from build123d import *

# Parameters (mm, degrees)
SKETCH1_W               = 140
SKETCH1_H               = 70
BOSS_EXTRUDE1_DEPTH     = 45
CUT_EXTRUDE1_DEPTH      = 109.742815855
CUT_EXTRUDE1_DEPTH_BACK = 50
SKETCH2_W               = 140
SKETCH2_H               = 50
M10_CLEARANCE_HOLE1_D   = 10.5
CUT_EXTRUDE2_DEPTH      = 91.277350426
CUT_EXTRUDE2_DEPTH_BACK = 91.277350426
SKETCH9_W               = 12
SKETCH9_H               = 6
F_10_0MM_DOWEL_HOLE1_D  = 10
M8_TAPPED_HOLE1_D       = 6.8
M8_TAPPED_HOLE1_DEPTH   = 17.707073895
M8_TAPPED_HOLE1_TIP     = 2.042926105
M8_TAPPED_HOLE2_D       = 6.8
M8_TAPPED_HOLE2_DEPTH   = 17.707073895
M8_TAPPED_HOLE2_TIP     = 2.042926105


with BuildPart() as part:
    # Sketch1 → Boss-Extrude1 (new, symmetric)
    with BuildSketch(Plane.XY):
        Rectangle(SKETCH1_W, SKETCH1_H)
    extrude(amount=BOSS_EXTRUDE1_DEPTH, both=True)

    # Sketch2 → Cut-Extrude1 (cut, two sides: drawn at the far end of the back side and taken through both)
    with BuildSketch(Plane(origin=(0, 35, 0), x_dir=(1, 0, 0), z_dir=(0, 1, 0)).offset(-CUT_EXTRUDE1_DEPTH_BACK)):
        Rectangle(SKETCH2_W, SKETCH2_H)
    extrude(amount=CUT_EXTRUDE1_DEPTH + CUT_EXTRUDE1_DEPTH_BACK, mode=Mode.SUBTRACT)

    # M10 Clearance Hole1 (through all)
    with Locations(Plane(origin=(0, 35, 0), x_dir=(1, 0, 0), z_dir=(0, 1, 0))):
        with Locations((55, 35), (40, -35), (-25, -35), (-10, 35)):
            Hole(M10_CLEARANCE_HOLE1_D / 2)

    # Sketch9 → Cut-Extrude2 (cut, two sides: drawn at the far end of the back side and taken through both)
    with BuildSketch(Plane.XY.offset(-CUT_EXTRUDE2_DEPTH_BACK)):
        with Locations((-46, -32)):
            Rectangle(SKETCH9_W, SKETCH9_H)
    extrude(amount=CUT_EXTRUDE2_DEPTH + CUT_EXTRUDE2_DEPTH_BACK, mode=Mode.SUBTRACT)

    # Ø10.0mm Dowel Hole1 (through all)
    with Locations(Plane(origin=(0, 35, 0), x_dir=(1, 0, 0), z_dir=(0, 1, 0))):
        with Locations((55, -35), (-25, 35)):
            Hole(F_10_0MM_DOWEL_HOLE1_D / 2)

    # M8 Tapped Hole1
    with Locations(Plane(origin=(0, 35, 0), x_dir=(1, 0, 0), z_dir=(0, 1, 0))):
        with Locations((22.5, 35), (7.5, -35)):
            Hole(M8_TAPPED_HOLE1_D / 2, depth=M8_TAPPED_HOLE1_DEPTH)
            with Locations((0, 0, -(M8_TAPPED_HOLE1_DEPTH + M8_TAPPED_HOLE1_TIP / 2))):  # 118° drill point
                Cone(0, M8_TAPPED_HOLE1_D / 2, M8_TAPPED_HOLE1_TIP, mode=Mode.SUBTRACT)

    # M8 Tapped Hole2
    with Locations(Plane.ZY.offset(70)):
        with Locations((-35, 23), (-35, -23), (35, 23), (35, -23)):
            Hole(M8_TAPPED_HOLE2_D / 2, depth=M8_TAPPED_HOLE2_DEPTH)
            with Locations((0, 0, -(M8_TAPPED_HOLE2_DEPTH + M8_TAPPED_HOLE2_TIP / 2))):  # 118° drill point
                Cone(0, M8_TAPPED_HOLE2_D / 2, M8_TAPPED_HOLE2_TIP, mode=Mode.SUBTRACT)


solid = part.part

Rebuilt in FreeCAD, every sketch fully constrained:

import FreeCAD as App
import Part
import Sketcher
from FreeCAD import Vector
Q = App.Units.Quantity


def add_polygon(sketch, points):
    """Adds a closed chain of lines whose ends are joined by coincident constraints."""
    first, n = sketch.GeometryCount, len(points)
    for a, b in zip(points, points[1:] + points[:1]):
        sketch.addGeometry(Part.LineSegment(App.Vector(*a, 0), App.Vector(*b, 0)), False)
    for i in range(n):
        sketch.addConstraint(Sketcher.Constraint("Coincident", first + i, 2, first + (i + 1) % n, 1))

doc = App.newDocument("Part")
body = doc.addObject("PartDesign::Body", "Body")

# Sketch on XY plane
sketch1 = doc.addObject("Sketcher::SketchObject", "Sketch")
body.addObject(sketch1)
sketch1.AttachmentSupport = (doc.XY_Plane, [""])
sketch1.MapMode = "FlatFace"
add_polygon(sketch1, [(-70, 35), (-70, -35), (70, -35), (70, 35)])  # lines 0-3
sketch1.addConstraint([
    Sketcher.Constraint("Vertical", 0),
    Sketcher.Constraint("Horizontal", 1),
    Sketcher.Constraint("Vertical", 2),
    Sketcher.Constraint("Horizontal", 3),
    Sketcher.Constraint("Symmetric", 0, 2, 2, 2, -1, 1),
    Sketcher.Constraint("DistanceX", 1, 1, 1, 2, Q("140 mm")),
    Sketcher.Constraint("DistanceY", 0, 2, 0, 1, Q("70 mm")),
])
pad1 = doc.addObject("PartDesign::Pad", "Pad")
body.addObject(pad1)
pad1.Profile = sketch1
pad1.Length = 90
pad1.Midplane = True

# Sketch on XZ plane
sketch2 = doc.addObject("Sketcher::SketchObject", "Sketch001")
body.addObject(sketch2)
sketch2.AttachmentSupport = (doc.XZ_Plane, [""])
sketch2.MapMode = "FlatFace"
sketch2.AttachmentOffset = App.Placement(Vector(0, 0, -35), App.Rotation())
add_polygon(sketch2, [(-70, -25), (-70, 25), (70, 25), (70, -25)])  # lines 0-3
sketch2.addConstraint([
    Sketcher.Constraint("Vertical", 0),
    Sketcher.Constraint("Horizontal", 1),
    Sketcher.Constraint("Vertical", 2),
    Sketcher.Constraint("Horizontal", 3),
    Sketcher.Constraint("Symmetric", 0, 2, 2, 2, -1, 1),
    Sketcher.Constraint("DistanceX", 1, 1, 1, 2, Q("140 mm")),
    Sketcher.Constraint("DistanceY", 0, 1, 0, 2, Q("50 mm")),
])
pocket1 = doc.addObject("PartDesign::Pocket", "Pocket")
body.addObject(pocket1)
pocket1.Profile = sketch2
pocket1.Type = "TwoLengths"
pocket1.Length = 109.742816
pocket1.Length2 = 50

# Sketch on XZ plane
sketch3 = doc.addObject("Sketcher::SketchObject", "Sketch002")
body.addObject(sketch3)
sketch3.AttachmentSupport = (doc.XZ_Plane, [""])
sketch3.MapMode = "FlatFace"
sketch3.AttachmentOffset = App.Placement(Vector(0, 0, -35), App.Rotation())
sketch3.addGeometry([
    Part.Circle(Vector(55, -35, 0), Vector(0, 0, 1), 5.25),
    Part.Circle(Vector(40, 35, 0), Vector(0, 0, 1), 5.25),
    Part.Circle(Vector(-25, 35, 0), Vector(0, 0, 1), 5.25),
    Part.Circle(Vector(-10, -35, 0), Vector(0, 0, 1), 5.25),
], False)
sketch3.addConstraint([
    Sketcher.Constraint("Equal", 0, 1),
    Sketcher.Constraint("Equal", 1, 2),
    Sketcher.Constraint("Equal", 2, 3),
    Sketcher.Constraint("Horizontal", 1, 3, 2, 3),
    Sketcher.Constraint("Horizontal", 0, 3, 3, 3),
    Sketcher.Constraint("Diameter", 0, Q("10.5 mm")),
    Sketcher.Constraint("DistanceX", -1, 1, 0, 3, Q("55 mm")),
    Sketcher.Constraint("DistanceY", 0, 3, -1, 1, Q("35 mm")),
    Sketcher.Constraint("DistanceX", -1, 1, 1, 3, Q("40 mm")),
    Sketcher.Constraint("DistanceY", -1, 1, 1, 3, Q("35 mm")),
    Sketcher.Constraint("DistanceX", 2, 3, -1, 1, Q("25 mm")),
    Sketcher.Constraint("DistanceX", 3, 3, -1, 1, Q("10 mm")),
])
doc.recompute()
hole = doc.addObject("PartDesign::Hole", "Hole")
body.addObject(hole)
hole.Profile = sketch3
hole.ThreadType = "None"
hole.Diameter = 10.5
hole.DepthType = "ThroughAll"
hole.Reversed = True

# Sketch on XY plane
sketch4 = doc.addObject("Sketcher::SketchObject", "Sketch003")
body.addObject(sketch4)
sketch4.AttachmentSupport = (doc.XY_Plane, [""])
sketch4.MapMode = "FlatFace"
add_polygon(sketch4, [(-52, -29), (-52, -35), (-40, -35), (-40, -29)])  # lines 0-3
sketch4.addConstraint([
    Sketcher.Constraint("Vertical", 0),
    Sketcher.Constraint("Horizontal", 1),
    Sketcher.Constraint("Vertical", 2),
    Sketcher.Constraint("Horizontal", 3),
    Sketcher.Constraint("DistanceX", 1, 1, 1, 2, Q("12 mm")),
    Sketcher.Constraint("DistanceY", 0, 2, 0, 1, Q("6 mm")),
    Sketcher.Constraint("DistanceX", 0, 2, -1, 1, Q("52 mm")),
    Sketcher.Constraint("DistanceY", 0, 2, -1, 1, Q("35 mm")),
])
pocket2 = doc.addObject("PartDesign::Pocket", "Pocket001")
body.addObject(pocket2)
pocket2.Profile = sketch4
pocket2.Type = "ThroughAll"
pocket2.Midplane = True

# Sketch on XZ plane
sketch5 = doc.addObject("Sketcher::SketchObject", "Sketch004")
body.addObject(sketch5)
sketch5.AttachmentSupport = (doc.XZ_Plane, [""])
sketch5.MapMode = "FlatFace"
sketch5.AttachmentOffset = App.Placement(Vector(0, 0, -35), App.Rotation())
sketch5.addGeometry([
    Part.Circle(Vector(55, 35, 0), Vector(0, 0, 1), 5),
    Part.Circle(Vector(-25, -35, 0), Vector(0, 0, 1), 5),
], False)
sketch5.addConstraint([
    Sketcher.Constraint("Equal", 0, 1),
    Sketcher.Constraint("Diameter", 0, Q("10 mm")),
    Sketcher.Constraint("DistanceX", -1, 1, 0, 3, Q("55 mm")),
    Sketcher.Constraint("DistanceY", -1, 1, 0, 3, Q("35 mm")),
    Sketcher.Constraint("DistanceX", 1, 3, -1, 1, Q("25 mm")),
    Sketcher.Constraint("DistanceY", 1, 3, -1, 1, Q("35 mm")),
])
doc.recompute()
hole2 = doc.addObject("PartDesign::Hole", "Hole001")
body.addObject(hole2)
hole2.Profile = sketch5
hole2.ThreadType = "None"
hole2.Diameter = 10
hole2.DepthType = "ThroughAll"
hole2.Reversed = True

# Sketch on XZ plane
sketch6 = doc.addObject("Sketcher::SketchObject", "Sketch005")
body.addObject(sketch6)
sketch6.AttachmentSupport = (doc.XZ_Plane, [""])
sketch6.MapMode = "FlatFace"
sketch6.AttachmentOffset = App.Placement(Vector(0, 0, -35), App.Rotation())
sketch6.addGeometry([
    Part.Circle(Vector(22.5, -35, 0), Vector(0, 0, 1), 3.4),
    Part.Circle(Vector(7.5, 35, 0), Vector(0, 0, 1), 3.4),
], False)
sketch6.addConstraint([
    Sketcher.Constraint("Equal", 0, 1),
    Sketcher.Constraint("Diameter", 0, Q("6.8 mm")),
    Sketcher.Constraint("DistanceY", 0, 3, -1, 1, Q("35 mm")),
    Sketcher.Constraint("DistanceY", -1, 1, 1, 3, Q("35 mm")),
    Sketcher.Constraint("DistanceX", 1, 3, 0, 3, Q("15 mm")),
    Sketcher.Constraint("DistanceX", -1, 1, 0, 3, Q("22.5 mm")),
])
doc.recompute()
hole3 = doc.addObject("PartDesign::Hole", "Hole002")
body.addObject(hole3)
hole3.Profile = sketch6
hole3.ThreadType = "None"
hole3.Diameter = 6.8
hole3.DepthType = "Dimension"
hole3.Depth = 17.707074
hole3.DrillPoint = "Angled"
hole3.DrillPointAngle = 118
hole3.Reversed = True

# Sketch on YZ plane
sketch7 = doc.addObject("Sketcher::SketchObject", "Sketch006")
body.addObject(sketch7)
sketch7.AttachmentSupport = (doc.YZ_Plane, [""])
sketch7.MapMode = "FlatFace"
sketch7.AttachmentOffset = App.Placement(Vector(0, 0, -70), App.Rotation())
sketch7.addGeometry([
    Part.Circle(Vector(23, -35, 0), Vector(0, 0, 1), 3.4),
    Part.Circle(Vector(-23, -35, 0), Vector(0, 0, 1), 3.4),
    Part.Circle(Vector(23, 35, 0), Vector(0, 0, 1), 3.4),
    Part.Circle(Vector(-23, 35, 0), Vector(0, 0, 1), 3.4),
], False)
sketch7.addConstraint([
    Sketcher.Constraint("Equal", 0, 1),
    Sketcher.Constraint("Equal", 1, 2),
    Sketcher.Constraint("Equal", 2, 3),
    Sketcher.Constraint("Symmetric", 1, 3, 2, 3, -1, 1),
    Sketcher.Constraint("Symmetric", 0, 3, 3, 3, -1, 1),
    Sketcher.Constraint("Symmetric", 0, 3, 1, 3, -2),
    Sketcher.Constraint("Diameter", 0, Q("6.8 mm")),
    Sketcher.Constraint("DistanceX", -1, 1, 0, 3, Q("23 mm")),
    Sketcher.Constraint("DistanceY", 0, 3, -1, 1, Q("35 mm")),
])
doc.recompute()
hole4 = doc.addObject("PartDesign::Hole", "Hole003")
body.addObject(hole4)
hole4.Profile = sketch7
hole4.ThreadType = "None"
hole4.Diameter = 6.8
hole4.DepthType = "Dimension"
hole4.Depth = 17.707074
hole4.DrillPoint = "Angled"
hole4.DrillPointAngle = 118
hole4.Reversed = True

doc.recompute()
